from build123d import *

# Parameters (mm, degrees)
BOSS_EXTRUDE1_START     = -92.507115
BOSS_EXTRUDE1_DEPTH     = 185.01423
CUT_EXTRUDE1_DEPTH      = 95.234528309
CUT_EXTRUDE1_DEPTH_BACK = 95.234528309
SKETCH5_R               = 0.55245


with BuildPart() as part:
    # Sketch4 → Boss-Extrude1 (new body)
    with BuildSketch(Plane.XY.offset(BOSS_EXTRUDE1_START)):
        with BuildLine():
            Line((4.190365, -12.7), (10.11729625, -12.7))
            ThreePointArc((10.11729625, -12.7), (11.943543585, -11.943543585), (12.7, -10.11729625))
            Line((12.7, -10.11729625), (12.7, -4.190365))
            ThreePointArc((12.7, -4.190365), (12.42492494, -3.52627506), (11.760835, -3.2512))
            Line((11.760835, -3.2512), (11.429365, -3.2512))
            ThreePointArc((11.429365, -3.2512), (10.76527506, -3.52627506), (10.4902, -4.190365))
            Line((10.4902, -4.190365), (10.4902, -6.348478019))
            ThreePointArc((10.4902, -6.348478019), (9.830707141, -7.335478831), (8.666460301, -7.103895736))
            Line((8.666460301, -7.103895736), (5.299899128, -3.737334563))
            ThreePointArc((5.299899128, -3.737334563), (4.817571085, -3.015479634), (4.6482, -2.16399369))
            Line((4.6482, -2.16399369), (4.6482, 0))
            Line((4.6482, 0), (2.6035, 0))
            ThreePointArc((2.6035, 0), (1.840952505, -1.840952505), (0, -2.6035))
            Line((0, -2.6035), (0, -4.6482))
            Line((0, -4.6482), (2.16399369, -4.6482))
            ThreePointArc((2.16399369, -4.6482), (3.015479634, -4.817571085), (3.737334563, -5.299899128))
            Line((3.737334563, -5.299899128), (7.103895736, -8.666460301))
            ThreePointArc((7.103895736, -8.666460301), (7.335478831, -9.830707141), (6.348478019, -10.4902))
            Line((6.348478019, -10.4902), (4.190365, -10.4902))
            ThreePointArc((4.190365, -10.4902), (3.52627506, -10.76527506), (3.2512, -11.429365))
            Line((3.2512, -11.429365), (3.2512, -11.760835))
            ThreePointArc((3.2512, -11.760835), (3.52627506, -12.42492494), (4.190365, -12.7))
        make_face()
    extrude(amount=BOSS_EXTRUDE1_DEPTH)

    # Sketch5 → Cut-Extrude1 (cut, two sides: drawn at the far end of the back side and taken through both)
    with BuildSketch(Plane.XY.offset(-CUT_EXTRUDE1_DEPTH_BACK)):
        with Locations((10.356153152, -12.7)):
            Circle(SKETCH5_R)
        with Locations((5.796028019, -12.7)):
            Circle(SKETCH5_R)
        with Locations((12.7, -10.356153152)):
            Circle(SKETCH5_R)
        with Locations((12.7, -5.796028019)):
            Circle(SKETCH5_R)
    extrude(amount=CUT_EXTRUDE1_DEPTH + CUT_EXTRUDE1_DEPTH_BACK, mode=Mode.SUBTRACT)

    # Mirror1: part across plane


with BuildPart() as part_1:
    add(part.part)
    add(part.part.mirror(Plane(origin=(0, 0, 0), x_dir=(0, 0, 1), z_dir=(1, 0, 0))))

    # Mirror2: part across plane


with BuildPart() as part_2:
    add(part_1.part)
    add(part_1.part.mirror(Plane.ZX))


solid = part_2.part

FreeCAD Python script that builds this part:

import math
import FreeCAD as App
import Part
import Sketcher
from FreeCAD import Vector
Q = App.Units.Quantity

doc = App.newDocument("Part")
body = doc.addObject("PartDesign::Body", "Body")

# Sketch on XY plane
sketch1 = doc.addObject("Sketcher::SketchObject", "Sketch")
body.addObject(sketch1)
sketch1.AttachmentSupport = (doc.XY_Plane, [""])
sketch1.MapMode = "FlatFace"
sketch1.AttachmentOffset = App.Placement(Vector(0, 0, -92.507115), App.Rotation())
sketch1.addGeometry([
    Part.LineSegment(Vector(4.190365, -12.7, 0), Vector(10.117296, -12.7, 0)),  # 0
    Part.ArcOfCircle(Part.Circle(Vector(10.117296, -10.117296, 0), Vector(0, 0, 1), 2.582704), math.radians(-90), math.radians(0)),  # 1
    Part.LineSegment(Vector(12.7, -10.117296, 0), Vector(12.7, -4.190365, 0)),  # 2
    Part.ArcOfCircle(Part.Circle(Vector(11.760835, -4.190365, 0), Vector(0, 0, 1), 0.939165), math.radians(0), math.radians(90)),  # 3
    Part.LineSegment(Vector(11.760835, -3.2512, 0), Vector(11.429365, -3.2512, 0)),  # 4
    Part.ArcOfCircle(Part.Circle(Vector(11.429365, -4.190365, 0), Vector(0, 0, 1), 0.939165), math.radians(90), math.radians(180)),  # 5
    Part.LineSegment(Vector(10.4902, -4.190365, 0), Vector(10.4902, -6.348478, 0)),  # 6
    Part.ArcOfCircle(Part.Circle(Vector(9.421878, -6.348478, 0), Vector(0, 0, 1), 1.068322), math.radians(-135), math.radians(0)),  # 7
    Part.LineSegment(Vector(8.66646, -7.103896, 0), Vector(5.299899, -3.737335, 0)),  # 8
    Part.ArcOfCircle(Part.Circle(Vector(6.87324, -2.163994, 0), Vector(0, 0, 1), 2.22504), math.radians(-180), math.radians(-135)),  # 9
    Part.LineSegment(Vector(4.6482, -2.163994, 0), Vector(4.6482, 0, 0)),  # 10
    Part.LineSegment(Vector(4.6482, 0, 0), Vector(2.6035, 0, 0)),  # 11
    Part.ArcOfCircle(Part.Circle(Vector(0, 0, 0), Vector(0, 0, 1), 2.6035), math.radians(-90), math.radians(0)),  # 12
    Part.LineSegment(Vector(0, -2.6035, 0), Vector(0, -4.6482, 0)),  # 13
    Part.LineSegment(Vector(0, -4.6482, 0), Vector(2.163994, -4.6482, 0)),  # 14
    Part.ArcOfCircle(Part.Circle(Vector(2.163994, -6.87324, 0), Vector(0, 0, 1), 2.22504), math.radians(45), math.radians(90)),  # 15
    Part.LineSegment(Vector(3.737335, -5.299899, 0), Vector(7.103896, -8.66646, 0)),  # 16
    Part.ArcOfCircle(Part.Circle(Vector(6.348478, -9.421878, 0), Vector(0, 0, 1), 1.068322), math.radians(-90), math.radians(45)),  # 17
    Part.LineSegment(Vector(6.348478, -10.4902, 0), Vector(4.190365, -10.4902, 0)),  # 18
    Part.ArcOfCircle(Part.Circle(Vector(4.190365, -11.429365, 0), Vector(0, 0, 1), 0.939165), math.radians(90), math.radians(180)),  # 19
    Part.LineSegment(Vector(3.2512, -11.429365, 0), Vector(3.2512, -11.760835, 0)),  # 20
    Part.ArcOfCircle(Part.Circle(Vector(4.190365, -11.760835, 0), Vector(0, 0, 1), 0.939165), math.radians(-180), math.radians(-90)),  # 21
], False)
sketch1.addConstraint([
    Sketcher.Constraint("Tangent", 0, 2, 1, 1),
    Sketcher.Constraint("Tangent", 1, 2, 2, 1),
    Sketcher.Constraint("Tangent", 2, 2, 3, 1),
    Sketcher.Constraint("Tangent", 3, 2, 4, 1),
    Sketcher.Constraint("Tangent", 4, 2, 5, 1),
    Sketcher.Constraint("Tangent", 5, 2, 6, 1),
    Sketcher.Constraint("Tangent", 6, 2, 7, 2),
    Sketcher.Constraint("Tangent", 7, 1, 8, 1),
    Sketcher.Constraint("Tangent", 8, 2, 9, 2),
    Sketcher.Constraint("Tangent", 9, 1, 10, 1),
    Sketcher.Constraint("Coincident", 10, 2, 11, 1),
    Sketcher.Constraint("Coincident", 11, 2, 12, 2),
    Sketcher.Constraint("Coincident", 12, 1, 13, 1),
    Sketcher.Constraint("Coincident", 13, 2, 14, 1),
    Sketcher.Constraint("Tangent", 14, 2, 15, 2),
    Sketcher.Constraint("Tangent", 15, 1, 16, 1),
    Sketcher.Constraint("Tangent", 16, 2, 17, 2),
    Sketcher.Constraint("Tangent", 17, 1, 18, 1),
    Sketcher.Constraint("Tangent", 18, 2, 19, 1),
    Sketcher.Constraint("Tangent", 19, 2, 20, 1),
    Sketcher.Constraint("Tangent", 20, 2, 21, 1),
    Sketcher.Constraint("Tangent", 21, 2, 0, 1),
    Sketcher.Constraint("Horizontal", 0),
    Sketcher.Constraint("Vertical", 2),
    Sketcher.Constraint("Horizontal", 4),
    Sketcher.Constraint("Vertical", 6),
    Sketcher.Constraint("Vertical", 10),
    Sketcher.Constraint("Horizontal", 11),
    Sketcher.Constraint("Vertical", 13),
    Sketcher.Constraint("Horizontal", 14),
    Sketcher.Constraint("Horizontal", 18),
    Sketcher.Constraint("Vertical", 20),
    Sketcher.Constraint("Coincident", 12, 3, -1, 1),
    Sketcher.Constraint("Equal", 3, 5),
    Sketcher.Constraint("Equal", 9, 15),
    Sketcher.Constraint("Equal", 7, 17),
    Sketcher.Constraint("Equal", 5, 19),
    Sketcher.Constraint("Equal", 19, 21),
    Sketcher.Constraint("PointOnObject", 10, 2, -1),
    Sketcher.Constraint("PointOnObject", 12, 1, -2),
    Sketcher.Constraint("Parallel", 8, 16),
    Sketcher.Constraint("Equal", 0, 2),
    Sketcher.Constraint("Equal", 18, 6),
    Sketcher.Constraint("Equal", 14, 10),
    Sketcher.Constraint("Equal", 11, 13),
    Sketcher.Constraint("Equal", 4, 20),
    Sketcher.Constraint("Equal", 8, 16),
    Sketcher.Constraint("DistanceY", 0, 2, -1, 1, Q("0.5 in")),
    Sketcher.Constraint("Radius", 9, Q("0.0876 in")),
    Sketcher.Constraint("Radius", 12, Q("0.1025 in")),
    Sketcher.Constraint("DistanceX", 9, 1, 5, 2, Q("0.23 in")),
    Sketcher.Constraint("DistanceX", 11, 2, 11, 1, Q("0.0805 in")),
    Sketcher.Constraint("DistanceY", 3, 2, -1, 1, Q("0.128 in")),
    Sketcher.Constraint("Radius", 7, 1.068322),
    Sketcher.Constraint("DistanceX", 17, 3, 7, 3, Q("0.121 in")),
    Sketcher.Constraint("Radius", 1, 2.582704),
    Sketcher.Constraint("Radius", 3, 0.939165),
])
pad1 = doc.addObject("PartDesign::Pad", "Pad")
body.addObject(pad1)
pad1.Profile = sketch1
pad1.Length = 185.01423

# Sketch on XY plane
sketch2 = doc.addObject("Sketcher::SketchObject", "Sketch001")
body.addObject(sketch2)
sketch2.AttachmentSupport = (doc.XY_Plane, [""])
sketch2.MapMode = "FlatFace"
sketch2.addGeometry([
    Part.Circle(Vector(10.356153, -12.7, 0), Vector(0, 0, 1), 0.55245),
    Part.Circle(Vector(5.796028, -12.7, 0), Vector(0, 0, 1), 0.55245),
    Part.Circle(Vector(12.7, -10.356153, 0), Vector(0, 0, 1), 0.55245),
    Part.Circle(Vector(12.7, -5.796028, 0), Vector(0, 0, 1), 0.55245),
], False)
sketch2.addConstraint([
    Sketcher.Constraint("Equal", 0, 1),
    Sketcher.Constraint("Equal", 1, 2),
    Sketcher.Constraint("Equal", 2, 3),
    Sketcher.Constraint("Horizontal", 0, 3, 1, 3),
    Sketcher.Constraint("Vertical", 2, 3, 3, 3),
    Sketcher.Constraint("Diameter", 0, Q("0.0435 in")),
    Sketcher.Constraint("DistanceY", 0, 3, -1, 1, Q("0.5 in")),
    Sketcher.Constraint("DistanceX", -1, 1, 2, 3, Q("0.5 in")),
    Sketcher.Constraint("DistanceX", -1, 1, 1, 3, 5.796028),
    Sketcher.Constraint("DistanceY", 3, 3, -1, 1, 5.796028),
    Sketcher.Constraint("DistanceX", -1, 1, 0, 3, 10.356153),
    Sketcher.Constraint("DistanceY", 2, 3, -1, 1, 10.356153),
])
pocket1 = doc.addObject("PartDesign::Pocket", "Pocket")
body.addObject(pocket1)
pocket1.Profile = sketch2
pocket1.Type = "ThroughAll"
pocket1.Midplane = True
body2 = doc.addObject("PartDesign::Body", "Body001")
doc.recompute()

body2.BaseFeature = body
doc.recompute()

mirroring = doc.addObject("Part::Mirroring", "Mirroring")
mirroring.Source = body
mirroring.Base = Vector(0, 0, 0)
mirroring.Normal = Vector(1, 0, 0)
body3 = doc.addObject("PartDesign::Body", "Body002")
body3.BaseFeature = mirroring
boolean = doc.addObject("PartDesign::Boolean", "Boolean")
body2.addObject(boolean)
boolean.Type = "Fuse"
boolean.addObjects([body3])
doc.recompute()
body4 = doc.addObject("PartDesign::Body", "Body003")
doc.recompute()

body4.BaseFeature = body2
doc.recompute()

mirroring2 = doc.addObject("Part::Mirroring", "Mirroring001")
mirroring2.Source = body2
mirroring2.Base = Vector(0, 0, 0)
mirroring2.Normal = Vector(0, 1, 0)
body5 = doc.addObject("PartDesign::Body", "Body004")
body5.BaseFeature = mirroring2
boolean2 = doc.addObject("PartDesign::Boolean", "Boolean001")
body4.addObject(boolean2)
boolean2.Type = "Fuse"
boolean2.addObjects([body5])
doc.recompute()
mirroring.Visibility = False
mirroring2.Visibility = False

doc.recompute()
